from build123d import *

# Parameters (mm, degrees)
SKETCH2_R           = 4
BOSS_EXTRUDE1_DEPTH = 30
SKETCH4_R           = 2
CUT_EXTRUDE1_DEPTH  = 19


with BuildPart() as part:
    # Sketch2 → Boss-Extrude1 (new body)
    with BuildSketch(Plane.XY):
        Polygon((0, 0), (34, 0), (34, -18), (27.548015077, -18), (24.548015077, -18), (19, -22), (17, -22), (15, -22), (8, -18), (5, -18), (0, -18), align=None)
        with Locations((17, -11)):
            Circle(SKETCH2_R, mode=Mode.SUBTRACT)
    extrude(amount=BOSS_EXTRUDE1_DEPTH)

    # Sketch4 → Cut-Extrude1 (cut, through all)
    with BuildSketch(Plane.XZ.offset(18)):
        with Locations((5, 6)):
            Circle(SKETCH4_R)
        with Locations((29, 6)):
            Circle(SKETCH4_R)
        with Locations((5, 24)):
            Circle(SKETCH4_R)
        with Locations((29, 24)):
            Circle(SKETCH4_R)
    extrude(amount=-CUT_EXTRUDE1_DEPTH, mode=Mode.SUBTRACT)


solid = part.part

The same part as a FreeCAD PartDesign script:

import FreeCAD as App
import Part
import Sketcher
from FreeCAD import Vector


def add_polygon(sketch, points):
    """Adds a closed chain of lines whose ends are joined by coincident constraints."""
    first, n = sketch.GeometryCount, len(points)
    for a, b in zip(points, points[1:] + points[:1]):
        sketch.addGeometry(Part.LineSegment(App.Vector(*a, 0), App.Vector(*b, 0)), False)
    for i in range(n):
        sketch.addConstraint(Sketcher.Constraint("Coincident", first + i, 2, first + (i + 1) % n, 1))

doc = App.newDocument("Part")
body = doc.addObject("PartDesign::Body", "Body")

# Sketch on XY plane
sketch1 = body.newObject("Sketcher::SketchObject", "Sketch")
sketch1.AttachmentSupport = (doc.getObject("XY_Plane"), [""])
sketch1.MapMode = "FlatFace"
add_polygon(sketch1, [(34, 0), (0, 0), (0, -18), (8, -18), (15, -22), (19, -22), (24.5, -18), (34, -18)])  # lines 0-7
sketch1.addGeometry(Part.Circle(Vector(17, -11, 0), Vector(0, 0, 1), 4), False)  # 8
sketch1.addConstraint([
    Sketcher.Constraint("Horizontal", 0),
    Sketcher.Constraint("Vertical", 1),
    Sketcher.Constraint("Horizontal", 2),
    Sketcher.Constraint("Horizontal", 4),
    Sketcher.Constraint("Horizontal", 6),
    Sketcher.Constraint("Vertical", 7),
    Sketcher.Constraint("Coincident", 0, 2, -1, 1),
    Sketcher.Constraint("Horizontal", 2, 2, 5, 2),
    Sketcher.Constraint("Diameter", 8, 8.0),
    Sketcher.Constraint("DistanceX", 0, 2, 0, 1, 34.0),
    Sketcher.Constraint("DistanceX", 2, 1, 2, 2, 8.0),
    Sketcher.Constraint("DistanceX", 4, 1, 4, 2, 4.0),
    Sketcher.Constraint("DistanceY", 1, 2, 1, 1, 18.0),
    Sketcher.Constraint("DistanceX", -1, 1, 8, 3, 17.0),
    Sketcher.Constraint("DistanceY", 8, 3, -1, 1, 11.0),
    Sketcher.Constraint("DistanceX", -1, 1, 3, 2, 15.0),
    Sketcher.Constraint("DistanceY", 3, 2, -1, 1, 22.0),
    Sketcher.Constraint("DistanceX", 6, 1, 6, 2, 9.451985),
])
pad1 = body.newObject("PartDesign::Pad", "Pad")
pad1.Profile = sketch1
pad1.Length = 30

# Sketch on XZ plane
sketch2 = body.newObject("Sketcher::SketchObject", "Sketch001")
sketch2.AttachmentSupport = (doc.getObject("XZ_Plane"), [""])
sketch2.MapMode = "FlatFace"
sketch2.AttachmentOffset = App.Placement(Vector(0, 0, 18), App.Rotation())
sketch2.addGeometry([
    Part.Circle(Vector(5, 6, 0), Vector(0, 0, 1), 2),
    Part.Circle(Vector(29, 6, 0), Vector(0, 0, 1), 2),
    Part.Circle(Vector(5, 24, 0), Vector(0, 0, 1), 2),
    Part.Circle(Vector(29, 24, 0), Vector(0, 0, 1), 2),
], False)
sketch2.addConstraint([
    Sketcher.Constraint("Equal", 0, 1),
    Sketcher.Constraint("Equal", 1, 2),
    Sketcher.Constraint("Equal", 2, 3),
    Sketcher.Constraint("Horizontal", 0, 3, 1, 3),
    Sketcher.Constraint("Horizontal", 2, 3, 3, 3),
    Sketcher.Constraint("Vertical", 0, 3, 2, 3),
    Sketcher.Constraint("Vertical", 1, 3, 3, 3),
    Sketcher.Constraint("Diameter", 0, 4.0),
    Sketcher.Constraint("DistanceX", -1, 1, 0, 3, 5.0),
    Sketcher.Constraint("DistanceY", -1, 1, 0, 3, 6.0),
    Sketcher.Constraint("DistanceX", -1, 1, 1, 3, 29.0),
    Sketcher.Constraint("DistanceY", -1, 1, 2, 3, 24.0),
])
pocket1 = body.newObject("PartDesign::Pocket", "Pocket")
pocket1.Profile = sketch2
pocket1.Type = "ThroughAll"

doc.recompute()
